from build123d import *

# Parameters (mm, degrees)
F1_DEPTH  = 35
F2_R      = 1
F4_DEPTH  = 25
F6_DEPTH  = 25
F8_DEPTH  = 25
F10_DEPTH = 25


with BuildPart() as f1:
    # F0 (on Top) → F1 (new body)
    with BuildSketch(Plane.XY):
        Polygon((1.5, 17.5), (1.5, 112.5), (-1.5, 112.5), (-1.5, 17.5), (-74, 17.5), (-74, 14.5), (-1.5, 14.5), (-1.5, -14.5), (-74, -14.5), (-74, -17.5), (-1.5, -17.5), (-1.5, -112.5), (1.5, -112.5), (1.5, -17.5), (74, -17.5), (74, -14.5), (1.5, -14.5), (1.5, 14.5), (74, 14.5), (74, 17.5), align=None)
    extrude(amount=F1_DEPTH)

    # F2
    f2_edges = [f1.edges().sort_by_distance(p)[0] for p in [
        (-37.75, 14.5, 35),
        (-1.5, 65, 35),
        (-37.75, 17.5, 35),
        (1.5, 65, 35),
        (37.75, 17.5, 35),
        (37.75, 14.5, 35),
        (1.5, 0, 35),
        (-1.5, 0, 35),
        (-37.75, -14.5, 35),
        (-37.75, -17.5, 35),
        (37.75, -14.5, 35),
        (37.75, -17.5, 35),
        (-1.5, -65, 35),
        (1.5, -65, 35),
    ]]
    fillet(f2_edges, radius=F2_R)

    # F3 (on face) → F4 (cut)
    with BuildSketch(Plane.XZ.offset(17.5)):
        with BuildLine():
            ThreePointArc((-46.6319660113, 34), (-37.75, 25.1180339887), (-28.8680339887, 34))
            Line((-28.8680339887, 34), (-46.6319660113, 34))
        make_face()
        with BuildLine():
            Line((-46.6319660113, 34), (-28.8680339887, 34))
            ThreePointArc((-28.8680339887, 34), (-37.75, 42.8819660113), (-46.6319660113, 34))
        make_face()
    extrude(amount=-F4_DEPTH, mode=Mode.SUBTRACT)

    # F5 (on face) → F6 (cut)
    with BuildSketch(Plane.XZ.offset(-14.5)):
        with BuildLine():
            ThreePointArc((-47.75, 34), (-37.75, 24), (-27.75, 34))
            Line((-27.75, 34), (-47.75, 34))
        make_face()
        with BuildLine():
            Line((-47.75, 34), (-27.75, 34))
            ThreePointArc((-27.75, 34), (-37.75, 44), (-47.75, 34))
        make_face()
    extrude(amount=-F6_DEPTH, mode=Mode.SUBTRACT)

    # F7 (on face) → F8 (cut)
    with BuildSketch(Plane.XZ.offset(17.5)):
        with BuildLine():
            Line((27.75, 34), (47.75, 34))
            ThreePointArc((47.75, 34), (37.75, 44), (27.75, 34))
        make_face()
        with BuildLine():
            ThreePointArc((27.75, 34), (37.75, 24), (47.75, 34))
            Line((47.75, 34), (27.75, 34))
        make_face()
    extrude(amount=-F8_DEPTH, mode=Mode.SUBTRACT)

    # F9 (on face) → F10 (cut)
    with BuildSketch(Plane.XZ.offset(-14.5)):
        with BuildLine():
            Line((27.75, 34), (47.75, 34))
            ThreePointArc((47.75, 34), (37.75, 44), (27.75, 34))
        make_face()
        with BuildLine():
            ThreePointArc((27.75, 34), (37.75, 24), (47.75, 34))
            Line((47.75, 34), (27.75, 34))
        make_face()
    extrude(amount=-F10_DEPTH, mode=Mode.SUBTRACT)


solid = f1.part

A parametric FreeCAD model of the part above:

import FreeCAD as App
import Part
import Sketcher


def edges_at(feature, points):
    """Names of the edges that pass closest to the given points."""
    edges = feature.Shape.Edges
    near = lambda p: min(range(len(edges)), key=lambda i: edges[i].distToShape(Part.Vertex(*p))[0])
    return sorted({f"Edge{near(p) + 1}" for p in points})

doc = App.newDocument("Part")
body = doc.addObject("PartDesign::Body", "Body")

sketch1 = body.newObject("Sketcher::SketchObject", "Sketch")
sketch1.AttachmentSupport = (doc.getObject("XY_Plane"), [""])
sketch1.MapMode = "FlatFace"
sketch1.addGeometry([
    Part.LineSegment(App.Vector(1.5, 17.5, 0), App.Vector(1.5, 112.5, 0)),
    Part.LineSegment(App.Vector(1.5, 112.5, 0), App.Vector(-1.5, 112.5, 0)),
    Part.LineSegment(App.Vector(-1.5, 112.5, 0), App.Vector(-1.5, 17.5, 0)),
    Part.LineSegment(App.Vector(-1.5, 17.5, 0), App.Vector(-74, 17.5, 0)),
    Part.LineSegment(App.Vector(-74, 17.5, 0), App.Vector(-74, 14.5, 0)),
    Part.LineSegment(App.Vector(-74, 14.5, 0), App.Vector(-1.5, 14.5, 0)),
    Part.LineSegment(App.Vector(-1.5, 14.5, 0), App.Vector(-1.5, -14.5, 0)),
    Part.LineSegment(App.Vector(-1.5, -14.5, 0), App.Vector(-74, -14.5, 0)),
    Part.LineSegment(App.Vector(-74, -14.5, 0), App.Vector(-74, -17.5, 0)),
    Part.LineSegment(App.Vector(-74, -17.5, 0), App.Vector(-1.5, -17.5, 0)),
    Part.LineSegment(App.Vector(-1.5, -17.5, 0), App.Vector(-1.5, -112.5, 0)),
    Part.LineSegment(App.Vector(-1.5, -112.5, 0), App.Vector(1.5, -112.5, 0)),
    Part.LineSegment(App.Vector(1.5, -112.5, 0), App.Vector(1.5, -17.5, 0)),
    Part.LineSegment(App.Vector(1.5, -17.5, 0), App.Vector(74, -17.5, 0)),
    Part.LineSegment(App.Vector(74, -17.5, 0), App.Vector(74, -14.5, 0)),
    Part.LineSegment(App.Vector(74, -14.5, 0), App.Vector(1.5, -14.5, 0)),
    Part.LineSegment(App.Vector(1.5, -14.5, 0), App.Vector(1.5, 14.5, 0)),
    Part.LineSegment(App.Vector(1.5, 14.5, 0), App.Vector(74, 14.5, 0)),
    Part.LineSegment(App.Vector(74, 14.5, 0), App.Vector(74, 17.5, 0)),
    Part.LineSegment(App.Vector(74, 17.5, 0), App.Vector(1.5, 17.5, 0)),
], False)
sketch1.addConstraint([
    Sketcher.Constraint("Coincident", 0, 2, 1, 1),
    Sketcher.Constraint("Coincident", 1, 2, 2, 1),
    Sketcher.Constraint("Coincident", 2, 2, 3, 1),
    Sketcher.Constraint("Coincident", 3, 2, 4, 1),
    Sketcher.Constraint("Coincident", 4, 2, 5, 1),
    Sketcher.Constraint("Coincident", 5, 2, 6, 1),
    Sketcher.Constraint("Coincident", 6, 2, 7, 1),
    Sketcher.Constraint("Coincident", 7, 2, 8, 1),
    Sketcher.Constraint("Coincident", 8, 2, 9, 1),
    Sketcher.Constraint("Coincident", 9, 2, 10, 1),
    Sketcher.Constraint("Coincident", 10, 2, 11, 1),
    Sketcher.Constraint("Coincident", 11, 2, 12, 1),
    Sketcher.Constraint("Coincident", 12, 2, 13, 1),
    Sketcher.Constraint("Coincident", 13, 2, 14, 1),
    Sketcher.Constraint("Coincident", 14, 2, 15, 1),
    Sketcher.Constraint("Coincident", 15, 2, 16, 1),
    Sketcher.Constraint("Coincident", 16, 2, 17, 1),
    Sketcher.Constraint("Coincident", 17, 2, 18, 1),
    Sketcher.Constraint("Coincident", 18, 2, 19, 1),
    Sketcher.Constraint("Coincident", 19, 2, 0, 1),
    Sketcher.Constraint("Vertical", 0),
    Sketcher.Constraint("Horizontal", 1),
    Sketcher.Constraint("Vertical", 2),
    Sketcher.Constraint("Horizontal", 3),
    Sketcher.Constraint("Vertical", 4),
    Sketcher.Constraint("Horizontal", 5),
    Sketcher.Constraint("Vertical", 6),
    Sketcher.Constraint("Horizontal", 7),
    Sketcher.Constraint("Vertical", 8),
    Sketcher.Constraint("Horizontal", 9),
    Sketcher.Constraint("Vertical", 10),
    Sketcher.Constraint("Horizontal", 11),
    Sketcher.Constraint("Vertical", 12),
    Sketcher.Constraint("Horizontal", 13),
    Sketcher.Constraint("Vertical", 14),
    Sketcher.Constraint("Horizontal", 15),
    Sketcher.Constraint("Vertical", 16),
    Sketcher.Constraint("Horizontal", 17),
    Sketcher.Constraint("Vertical", 18),
    Sketcher.Constraint("Horizontal", 19),
    Sketcher.Constraint("Symmetric", 0, 2, 10, 2, -1, 1),
    Sketcher.Constraint("Symmetric", 2, 2, 12, 2, -1, 1),
    Sketcher.Constraint("Symmetric", 4, 2, 14, 2, -1, 1),
    Sketcher.Constraint("Symmetric", 6, 2, 16, 2, -1, 1),
    Sketcher.Constraint("Symmetric", 8, 2, 18, 2, -1, 1),
    Sketcher.Constraint("Symmetric", 9, 2, 12, 2, -2),
    Sketcher.Constraint("Symmetric", 7, 2, 14, 2, -2),
    Sketcher.Constraint("Vertical", 2, 2, 5, 2),
    Sketcher.Constraint("Equal", 11, 4),
    Sketcher.Constraint("DistanceX", 1, 2, 1, 1, 3.0),
    Sketcher.Constraint("DistanceY", 0, 1, 0, 2, 95.0),
    Sketcher.Constraint("DistanceY", 6, 2, 6, 1, 29.0),
    Sketcher.Constraint("DistanceX", 3, 2, 3, 1, 72.5),
])
pad1 = body.newObject("PartDesign::Pad", "Pad")
pad1.Profile = sketch1
pad1.Length = 35
doc.recompute()

fillet = body.newObject("PartDesign::Fillet", "Fillet")
fillet.Base = (pad1, edges_at(pad1, [
    (-37.75, 14.5, 35),
    (-1.5, 65, 35),
    (-37.75, 17.5, 35),
    (1.5, 65, 35),
    (37.75, 17.5, 35),
    (37.75, 14.5, 35),
    (1.5, 0, 35),
    (-1.5, 0, 35),
    (-37.75, -14.5, 35),
    (-37.75, -17.5, 35),
    (37.75, -14.5, 35),
    (37.75, -17.5, 35),
    (-1.5, -65, 35),
    (1.5, -65, 35),
]))
fillet.Radius = 1

sketch2 = body.newObject("Sketcher::SketchObject", "Sketch001")
sketch2.AttachmentSupport = (doc.getObject("XZ_Plane"), [""])
sketch2.MapMode = "FlatFace"
sketch2.AttachmentOffset = App.Placement(App.Vector(0, 0, 17.5), App.Rotation())
sketch2.addGeometry(Part.Circle(App.Vector(-37.75, 34, 0), App.Vector(0, 0, 1), 8.881966), False)
sketch2.addConstraint([
    Sketcher.Constraint("DistanceY", -1, 1, 0, 3, 34.0),
    Sketcher.Constraint("DistanceX", 0, 3, -1, 1, 37.75),
    Sketcher.Constraint("Diameter", 0, 17.763932),
])
pocket1 = body.newObject("PartDesign::Pocket", "Pocket")
pocket1.Profile = sketch2
pocket1.Length = 25

sketch3 = body.newObject("Sketcher::SketchObject", "Sketch002")
sketch3.AttachmentSupport = (doc.getObject("XZ_Plane"), [""])
sketch3.MapMode = "FlatFace"
sketch3.AttachmentOffset = App.Placement(App.Vector(0, 0, -14.5), App.Rotation())
sketch3.addGeometry(Part.Circle(App.Vector(-37.75, 34, 0), App.Vector(0, 0, 1), 10), False)
sketch3.addConstraint([
    Sketcher.Constraint("Diameter", 0, 20.0),
    Sketcher.Constraint("DistanceY", -1, 1, 0, 3, 34.0),
    Sketcher.Constraint("DistanceX", 0, 3, -1, 1, 37.75),
])
pocket2 = body.newObject("PartDesign::Pocket", "Pocket001")
pocket2.Profile = sketch3
pocket2.Length = 25

sketch4 = body.newObject("Sketcher::SketchObject", "Sketch003")
sketch4.AttachmentSupport = (doc.getObject("XZ_Plane"), [""])
sketch4.MapMode = "FlatFace"
sketch4.AttachmentOffset = App.Placement(App.Vector(0, 0, 17.5), App.Rotation())
sketch4.addGeometry(Part.Circle(App.Vector(37.75, 34, 0), App.Vector(0, 0, 1), 10), False)
sketch4.addConstraint([
    Sketcher.Constraint("Diameter", 0, 20.0),
    Sketcher.Constraint("DistanceY", -1, 1, 0, 3, 34.0),
    Sketcher.Constraint("DistanceX", -1, 1, 0, 3, 37.75),
])
pocket3 = body.newObject("PartDesign::Pocket", "Pocket002")
pocket3.Profile = sketch4
pocket3.Length = 25

sketch5 = body.newObject("Sketcher::SketchObject", "Sketch004")
sketch5.AttachmentSupport = (doc.getObject("XZ_Plane"), [""])
sketch5.MapMode = "FlatFace"
sketch5.AttachmentOffset = App.Placement(App.Vector(0, 0, -14.5), App.Rotation())
sketch5.addGeometry(Part.Circle(App.Vector(37.75, 34, 0), App.Vector(0, 0, 1), 10), False)
sketch5.addConstraint([
    Sketcher.Constraint("Diameter", 0, 20.0),
    Sketcher.Constraint("DistanceY", -1, 1, 0, 3, 34.0),
    Sketcher.Constraint("DistanceX", -1, 1, 0, 3, 37.75),
])
pocket4 = body.newObject("PartDesign::Pocket", "Pocket003")
pocket4.Profile = sketch5
pocket4.Length = 25

doc.recompute()
